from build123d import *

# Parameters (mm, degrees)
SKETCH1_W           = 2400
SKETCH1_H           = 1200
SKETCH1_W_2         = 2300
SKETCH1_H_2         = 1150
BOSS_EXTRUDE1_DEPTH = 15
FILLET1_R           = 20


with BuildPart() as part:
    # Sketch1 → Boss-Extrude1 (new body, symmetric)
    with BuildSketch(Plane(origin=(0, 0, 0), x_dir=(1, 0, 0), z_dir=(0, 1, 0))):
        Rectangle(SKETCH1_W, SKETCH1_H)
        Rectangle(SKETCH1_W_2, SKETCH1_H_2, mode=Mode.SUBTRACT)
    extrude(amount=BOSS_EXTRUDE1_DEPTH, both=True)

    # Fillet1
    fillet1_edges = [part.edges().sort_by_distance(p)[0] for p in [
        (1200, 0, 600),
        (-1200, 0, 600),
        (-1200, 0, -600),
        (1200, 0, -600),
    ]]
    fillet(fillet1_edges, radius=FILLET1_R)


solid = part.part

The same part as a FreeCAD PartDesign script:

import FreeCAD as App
import Part
import Sketcher
Q = App.Units.Quantity


def edges_at(feature, points):
    """Names of the edges that pass closest to the given points."""
    edges = feature.Shape.Edges
    near = lambda p: min(range(len(edges)), key=lambda i: edges[i].distToShape(Part.Vertex(*p))[0])
    return sorted({f"Edge{near(p) + 1}" for p in points})

doc = App.newDocument("Part")
body = doc.addObject("PartDesign::Body", "Body")

# Sketch on XZ plane
sketch1 = body.newObject("Sketcher::SketchObject", "Sketch")
sketch1.AttachmentSupport = (doc.getObject("XZ_Plane"), [""])
sketch1.MapMode = "FlatFace"
sketch1.addGeometry([
    Part.LineSegment(App.Vector(-1200, -600, 0), App.Vector(-1200, 600, 0)),  # 0
    Part.LineSegment(App.Vector(-1200, 600, 0), App.Vector(1200, 600, 0)),  # 1
    Part.LineSegment(App.Vector(1200, 600, 0), App.Vector(1200, -600, 0)),  # 2
    Part.LineSegment(App.Vector(1200, -600, 0), App.Vector(-1200, -600, 0)),  # 3
    Part.LineSegment(App.Vector(1150, 575, 0), App.Vector(-1150, 575, 0)),  # 4
    Part.LineSegment(App.Vector(-1150, 575, 0), App.Vector(-1150, -575, 0)),  # 5
    Part.LineSegment(App.Vector(-1150, -575, 0), App.Vector(1150, -575, 0)),  # 6
    Part.LineSegment(App.Vector(1150, -575, 0), App.Vector(1150, 575, 0)),  # 7
], False)
sketch1.addConstraint([
    Sketcher.Constraint("Coincident", 0, 2, 1, 1),
    Sketcher.Constraint("Coincident", 1, 2, 2, 1),
    Sketcher.Constraint("Coincident", 2, 2, 3, 1),
    Sketcher.Constraint("Coincident", 3, 2, 0, 1),
    Sketcher.Constraint("Coincident", 4, 2, 5, 1),
    Sketcher.Constraint("Coincident", 5, 2, 6, 1),
    Sketcher.Constraint("Coincident", 6, 2, 7, 1),
    Sketcher.Constraint("Coincident", 7, 2, 4, 1),
    Sketcher.Constraint("Vertical", 0),
    Sketcher.Constraint("Horizontal", 1),
    Sketcher.Constraint("Vertical", 2),
    Sketcher.Constraint("Horizontal", 3),
    Sketcher.Constraint("Horizontal", 4),
    Sketcher.Constraint("Vertical", 5),
    Sketcher.Constraint("Horizontal", 6),
    Sketcher.Constraint("Vertical", 7),
    Sketcher.Constraint("Symmetric", 0, 2, 2, 2, -1, 1),
    Sketcher.Constraint("Symmetric", 4, 2, 6, 2, -1, 1),
    Sketcher.Constraint("DistanceX", 1, 1, 1, 2, Q("2400 mm")),
    Sketcher.Constraint("DistanceX", 4, 2, 4, 1, Q("2300 mm")),
    Sketcher.Constraint("DistanceY", 0, 1, 0, 2, Q("1200 mm")),
    Sketcher.Constraint("DistanceY", 5, 2, 5, 1, Q("1150 mm")),
])
pad1 = body.newObject("PartDesign::Pad", "Pad")
pad1.Profile = sketch1
pad1.Length = 30
pad1.Midplane = True
doc.recompute()

fillet = body.newObject("PartDesign::Fillet", "Fillet")
fillet.Base = (pad1, edges_at(pad1, [
    (1200, 0, 600),
    (-1200, 0, 600),
    (-1200, 0, -600),
    (1200, 0, -600),
]))
fillet.Radius = 20

doc.recompute()
